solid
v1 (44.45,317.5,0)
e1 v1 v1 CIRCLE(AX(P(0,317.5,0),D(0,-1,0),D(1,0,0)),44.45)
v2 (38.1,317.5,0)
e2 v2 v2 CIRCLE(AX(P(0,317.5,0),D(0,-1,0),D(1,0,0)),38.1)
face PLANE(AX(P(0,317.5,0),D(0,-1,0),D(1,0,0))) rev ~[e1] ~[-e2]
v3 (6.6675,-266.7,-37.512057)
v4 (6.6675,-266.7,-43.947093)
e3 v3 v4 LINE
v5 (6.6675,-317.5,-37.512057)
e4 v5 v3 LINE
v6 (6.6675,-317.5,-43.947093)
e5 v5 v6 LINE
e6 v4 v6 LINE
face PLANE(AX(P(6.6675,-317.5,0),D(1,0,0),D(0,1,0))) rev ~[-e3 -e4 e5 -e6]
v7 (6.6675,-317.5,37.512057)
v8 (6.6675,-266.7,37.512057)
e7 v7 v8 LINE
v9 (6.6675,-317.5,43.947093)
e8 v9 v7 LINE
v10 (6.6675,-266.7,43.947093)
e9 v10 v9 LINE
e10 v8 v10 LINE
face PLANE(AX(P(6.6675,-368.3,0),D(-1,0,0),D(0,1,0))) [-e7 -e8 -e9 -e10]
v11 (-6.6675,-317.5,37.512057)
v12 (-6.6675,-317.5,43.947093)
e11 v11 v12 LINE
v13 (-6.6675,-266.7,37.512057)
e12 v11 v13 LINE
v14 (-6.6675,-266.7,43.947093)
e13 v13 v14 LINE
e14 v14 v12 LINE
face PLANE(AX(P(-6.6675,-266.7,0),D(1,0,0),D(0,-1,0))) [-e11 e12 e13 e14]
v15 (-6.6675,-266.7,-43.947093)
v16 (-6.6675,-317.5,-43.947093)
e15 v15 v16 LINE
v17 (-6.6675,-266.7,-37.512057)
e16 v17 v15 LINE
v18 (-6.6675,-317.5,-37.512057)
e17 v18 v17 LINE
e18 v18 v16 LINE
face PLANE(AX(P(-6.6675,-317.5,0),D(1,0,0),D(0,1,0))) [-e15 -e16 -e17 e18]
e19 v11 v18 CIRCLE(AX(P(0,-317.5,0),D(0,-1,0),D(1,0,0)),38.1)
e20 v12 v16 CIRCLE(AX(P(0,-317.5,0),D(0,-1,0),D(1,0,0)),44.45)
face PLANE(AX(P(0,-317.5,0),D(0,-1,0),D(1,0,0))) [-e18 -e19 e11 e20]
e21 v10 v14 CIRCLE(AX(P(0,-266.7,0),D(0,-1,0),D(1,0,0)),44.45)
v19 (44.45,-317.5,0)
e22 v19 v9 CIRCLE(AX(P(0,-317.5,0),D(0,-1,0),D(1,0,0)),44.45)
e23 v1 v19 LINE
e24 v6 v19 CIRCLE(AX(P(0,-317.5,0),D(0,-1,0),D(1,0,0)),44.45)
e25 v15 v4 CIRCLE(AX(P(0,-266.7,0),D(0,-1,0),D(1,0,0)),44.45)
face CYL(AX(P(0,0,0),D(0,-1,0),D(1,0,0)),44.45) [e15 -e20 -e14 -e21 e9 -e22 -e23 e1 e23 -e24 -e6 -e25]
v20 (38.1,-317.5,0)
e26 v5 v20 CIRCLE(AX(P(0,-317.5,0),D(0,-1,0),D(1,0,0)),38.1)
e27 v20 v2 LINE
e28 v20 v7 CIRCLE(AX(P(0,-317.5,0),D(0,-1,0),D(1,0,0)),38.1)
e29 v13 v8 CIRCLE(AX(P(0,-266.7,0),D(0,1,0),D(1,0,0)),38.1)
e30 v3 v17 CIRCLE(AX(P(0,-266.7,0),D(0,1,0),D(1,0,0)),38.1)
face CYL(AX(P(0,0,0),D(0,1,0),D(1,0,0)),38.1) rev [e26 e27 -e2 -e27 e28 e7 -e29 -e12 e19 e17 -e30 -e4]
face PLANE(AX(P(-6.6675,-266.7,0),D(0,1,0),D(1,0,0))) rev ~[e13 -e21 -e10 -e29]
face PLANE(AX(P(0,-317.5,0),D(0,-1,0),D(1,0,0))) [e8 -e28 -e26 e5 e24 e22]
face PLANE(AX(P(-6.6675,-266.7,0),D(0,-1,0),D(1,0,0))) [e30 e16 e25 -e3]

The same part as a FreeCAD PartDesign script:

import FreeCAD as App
import Part
import Sketcher
from FreeCAD import Vector
Q = App.Units.Quantity


def add_polygon(sketch, points):
    """Adds a closed chain of lines whose ends are joined by coincident constraints."""
    first, n = sketch.GeometryCount, len(points)
    for a, b in zip(points, points[1:] + points[:1]):
        sketch.addGeometry(Part.LineSegment(App.Vector(*a, 0), App.Vector(*b, 0)), False)
    for i in range(n):
        sketch.addConstraint(Sketcher.Constraint("Coincident", first + i, 2, first + (i + 1) % n, 1))

doc = App.newDocument("Part")
body = doc.addObject("PartDesign::Body", "Body")

sketch1 = body.newObject("Sketcher::SketchObject", "Sketch")
sketch1.AttachmentSupport = (doc.getObject("XZ_Plane"), [""])
sketch1.MapMode = "FlatFace"
sketch1.addGeometry([
    Part.Circle(Vector(0, 0, 0), Vector(0, 0, 1), 44),
    Part.Circle(Vector(0, 0, 0), Vector(0, 0, 1), 38),
], False)
sketch1.addConstraint([
    Sketcher.Constraint("Coincident", 0, 3, -1, 1),
    Sketcher.Constraint("Coincident", 1, 3, -1, 1),
    Sketcher.Constraint("Diameter", 1, Q("3 in")),
    Sketcher.Constraint("Diameter", 0, Q("3.5 in")),
])
pad1 = body.newObject("PartDesign::Pad", "Pad")
pad1.Profile = sketch1
pad1.Length = Q("25 in")
pad1.Midplane = True

sketch2 = body.newObject("Sketcher::SketchObject", "Sketch001")
sketch2.AttachmentSupport = (doc.getObject("XY_Plane"), [""])
sketch2.MapMode = "FlatFace"
add_polygon(sketch2, [(-7, -368), (7, -368), (7, -267), (-7, -267)])
sketch2.addConstraint([
    Sketcher.Constraint("Horizontal", 0),
    Sketcher.Constraint("Vertical", 1),
    Sketcher.Constraint("Horizontal", 2),
    Sketcher.Constraint("Vertical", 3),
    Sketcher.Constraint("DistanceY", 1, 1, 1, 2, Q("4 in")),
    Sketcher.Constraint("DistanceY", 0, 2, -1, 1, Q("14.5 in")),
    Sketcher.Constraint("DistanceX", 0, 1, 0, 2, Q("0.525 in")),
    Sketcher.Constraint("DistanceX", -1, 1, 0, 2, Q("0.2625 in")),
])
pocket1 = body.newObject("PartDesign::Pocket", "Pocket")
pocket1.Profile = sketch2
pocket1.Type = "ThroughAll"
pocket1.Reversed = True

sketch3 = body.newObject("Sketcher::SketchObject", "Sketch002")
sketch3.AttachmentSupport = (doc.getObject("XY_Plane"), [""])
sketch3.MapMode = "FlatFace"
add_polygon(sketch3, [(-7, -267), (-7, -318), (7, -318), (7, -267)])
sketch3.addConstraint([
    Sketcher.Constraint("Vertical", 0),
    Sketcher.Constraint("Horizontal", 1),
    Sketcher.Constraint("Vertical", 2),
    Sketcher.Constraint("Horizontal", 3),
    Sketcher.Constraint("DistanceY", 0, 2, 0, 1, Q("2 in")),
    Sketcher.Constraint("DistanceY", 0, 2, -1, 1, Q("12.5 in")),
    Sketcher.Constraint("DistanceX", 1, 1, 1, 2, Q("0.525 in")),
    Sketcher.Constraint("DistanceX", 0, 2, -1, 1, Q("0.2625 in")),
])
pocket2 = body.newObject("PartDesign::Pocket", "Pocket001")
pocket2.Profile = sketch3
pocket2.Type = "ThroughAll"

doc.recompute()
